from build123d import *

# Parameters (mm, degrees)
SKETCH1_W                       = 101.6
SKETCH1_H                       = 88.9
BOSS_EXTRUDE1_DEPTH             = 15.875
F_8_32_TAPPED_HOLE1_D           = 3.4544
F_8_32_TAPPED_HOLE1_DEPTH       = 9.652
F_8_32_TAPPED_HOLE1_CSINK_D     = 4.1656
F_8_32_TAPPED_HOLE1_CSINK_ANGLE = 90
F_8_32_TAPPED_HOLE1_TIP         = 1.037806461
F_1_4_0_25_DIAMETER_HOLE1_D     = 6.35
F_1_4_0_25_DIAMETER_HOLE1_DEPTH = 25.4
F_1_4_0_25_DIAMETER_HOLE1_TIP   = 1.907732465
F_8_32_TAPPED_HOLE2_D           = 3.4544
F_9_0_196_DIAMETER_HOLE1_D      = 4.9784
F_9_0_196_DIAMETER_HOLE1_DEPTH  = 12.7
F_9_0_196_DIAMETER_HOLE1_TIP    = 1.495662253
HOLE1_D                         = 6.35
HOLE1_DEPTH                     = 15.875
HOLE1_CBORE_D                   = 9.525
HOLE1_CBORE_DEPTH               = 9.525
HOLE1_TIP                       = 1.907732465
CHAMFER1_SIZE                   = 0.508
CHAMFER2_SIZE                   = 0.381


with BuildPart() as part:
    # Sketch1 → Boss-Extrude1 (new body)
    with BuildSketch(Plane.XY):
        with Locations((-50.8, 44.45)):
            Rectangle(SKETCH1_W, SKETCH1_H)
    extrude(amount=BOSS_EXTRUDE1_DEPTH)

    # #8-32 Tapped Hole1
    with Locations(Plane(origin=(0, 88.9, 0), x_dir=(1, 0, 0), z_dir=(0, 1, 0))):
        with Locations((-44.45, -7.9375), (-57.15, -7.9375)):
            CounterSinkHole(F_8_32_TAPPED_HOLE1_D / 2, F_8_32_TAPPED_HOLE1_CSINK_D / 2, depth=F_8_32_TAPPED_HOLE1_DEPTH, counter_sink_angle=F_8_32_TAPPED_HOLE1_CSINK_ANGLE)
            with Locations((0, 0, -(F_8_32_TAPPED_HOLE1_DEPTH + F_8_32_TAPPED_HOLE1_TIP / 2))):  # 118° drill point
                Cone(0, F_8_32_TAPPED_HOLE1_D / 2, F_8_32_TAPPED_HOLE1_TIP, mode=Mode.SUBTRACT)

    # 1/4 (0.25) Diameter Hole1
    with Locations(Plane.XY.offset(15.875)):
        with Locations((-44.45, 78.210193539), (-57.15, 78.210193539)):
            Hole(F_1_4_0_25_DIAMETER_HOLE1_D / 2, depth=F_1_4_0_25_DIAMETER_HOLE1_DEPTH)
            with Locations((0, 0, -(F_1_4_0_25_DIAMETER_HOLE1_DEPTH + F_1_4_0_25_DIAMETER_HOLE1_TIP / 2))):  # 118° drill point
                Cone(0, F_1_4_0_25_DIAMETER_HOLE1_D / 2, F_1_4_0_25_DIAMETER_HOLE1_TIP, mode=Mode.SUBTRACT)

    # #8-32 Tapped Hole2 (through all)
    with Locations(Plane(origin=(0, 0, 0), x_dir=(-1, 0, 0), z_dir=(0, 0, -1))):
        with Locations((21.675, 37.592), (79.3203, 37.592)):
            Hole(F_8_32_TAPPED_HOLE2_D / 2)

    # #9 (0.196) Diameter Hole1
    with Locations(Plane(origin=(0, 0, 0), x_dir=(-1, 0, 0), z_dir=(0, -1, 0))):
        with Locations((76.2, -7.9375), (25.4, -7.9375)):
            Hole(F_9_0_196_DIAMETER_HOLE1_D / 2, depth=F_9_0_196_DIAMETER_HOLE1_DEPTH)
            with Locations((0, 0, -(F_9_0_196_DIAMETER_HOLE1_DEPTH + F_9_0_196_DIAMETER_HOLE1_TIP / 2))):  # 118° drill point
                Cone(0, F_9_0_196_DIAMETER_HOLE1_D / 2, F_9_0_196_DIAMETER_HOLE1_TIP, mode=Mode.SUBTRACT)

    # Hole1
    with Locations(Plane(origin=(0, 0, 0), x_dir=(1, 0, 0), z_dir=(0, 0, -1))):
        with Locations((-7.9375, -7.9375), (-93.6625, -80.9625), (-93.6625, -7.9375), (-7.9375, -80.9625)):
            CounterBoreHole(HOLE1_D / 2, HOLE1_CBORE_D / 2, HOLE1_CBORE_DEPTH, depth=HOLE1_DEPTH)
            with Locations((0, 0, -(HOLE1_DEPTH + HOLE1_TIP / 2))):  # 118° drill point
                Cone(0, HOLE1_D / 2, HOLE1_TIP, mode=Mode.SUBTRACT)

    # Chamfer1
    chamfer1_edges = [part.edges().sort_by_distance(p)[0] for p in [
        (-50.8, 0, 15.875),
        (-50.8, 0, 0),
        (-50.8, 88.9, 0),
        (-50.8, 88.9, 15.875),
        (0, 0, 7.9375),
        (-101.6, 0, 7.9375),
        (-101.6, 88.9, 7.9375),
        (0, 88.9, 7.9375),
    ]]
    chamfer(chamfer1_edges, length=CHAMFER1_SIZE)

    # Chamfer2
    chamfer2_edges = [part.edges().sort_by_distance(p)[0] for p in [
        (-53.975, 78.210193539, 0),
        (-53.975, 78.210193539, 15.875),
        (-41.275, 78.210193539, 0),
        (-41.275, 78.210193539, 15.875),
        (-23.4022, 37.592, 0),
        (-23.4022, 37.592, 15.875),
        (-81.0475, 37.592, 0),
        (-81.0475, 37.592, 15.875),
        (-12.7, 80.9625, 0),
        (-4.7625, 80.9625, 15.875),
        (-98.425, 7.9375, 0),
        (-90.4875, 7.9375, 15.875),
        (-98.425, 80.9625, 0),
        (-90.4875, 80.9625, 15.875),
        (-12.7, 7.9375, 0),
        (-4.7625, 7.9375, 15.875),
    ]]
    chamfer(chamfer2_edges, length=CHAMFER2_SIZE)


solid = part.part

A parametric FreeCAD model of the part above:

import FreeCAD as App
import Part
import Sketcher
Q = App.Units.Quantity


def edges_at(feature, points):
    """Names of the edges that pass closest to the given points."""
    edges = feature.Shape.Edges
    near = lambda p: min(range(len(edges)), key=lambda i: edges[i].distToShape(Part.Vertex(*p))[0])
    return sorted({f"Edge{near(p) + 1}" for p in points})

doc = App.newDocument("Part")
body = doc.addObject("PartDesign::Body", "Body")

# Sketch on XY plane
sketch1 = body.newObject("Sketcher::SketchObject", "Sketch")
sketch1.AttachmentSupport = (doc.getObject("XY_Plane"), [""])
sketch1.MapMode = "FlatFace"
sketch1.addGeometry(Part.LineSegment(App.Vector(-101.6, 88.9, 0), App.Vector(-101.6, 0, 0)), False)
sketch1.addGeometry(Part.LineSegment(App.Vector(-101.6, 0, 0), App.Vector(0, 0, 0)), False)
sketch1.addGeometry(Part.LineSegment(App.Vector(0, 0, 0), App.Vector(0, 88.9, 0)), False)
sketch1.addGeometry(Part.LineSegment(App.Vector(0, 88.9, 0), App.Vector(-101.6, 88.9, 0)), False)
sketch1.addConstraint(Sketcher.Constraint("Coincident", 0, 2, 1, 1))
sketch1.addConstraint(Sketcher.Constraint("Coincident", 1, 2, 2, 1))
sketch1.addConstraint(Sketcher.Constraint("Coincident", 2, 2, 3, 1))
sketch1.addConstraint(Sketcher.Constraint("Coincident", 3, 2, 0, 1))
sketch1.addConstraint(Sketcher.Constraint("Vertical", 0))
sketch1.addConstraint(Sketcher.Constraint("Horizontal", 1))
sketch1.addConstraint(Sketcher.Constraint("Vertical", 2))
sketch1.addConstraint(Sketcher.Constraint("Horizontal", 3))
sketch1.addConstraint(Sketcher.Constraint("Coincident", 1, 2, -1, 1))
sketch1.addConstraint(Sketcher.Constraint("DistanceX", 1, 1, 1, 2, Q("4 in")))
sketch1.addConstraint(Sketcher.Constraint("DistanceY", 0, 2, 0, 1, Q("3.5 in")))
pad1 = body.newObject("PartDesign::Pad", "Pad")
pad1.Profile = sketch1
pad1.Length = Q("0.625 in")

# Sketch on XZ plane
sketch2 = body.newObject("Sketcher::SketchObject", "Sketch001")
sketch2.AttachmentSupport = (doc.getObject("XZ_Plane"), [""])
sketch2.MapMode = "FlatFace"
sketch2.AttachmentOffset = App.Placement(App.Vector(0, 0, -3.5 * 25.4), App.Rotation())
sketch2.addGeometry(Part.Circle(App.Vector(-44.45, 7.9375, 0), App.Vector(0, 0, 1), 1.7272), False)
sketch2.addGeometry(Part.Circle(App.Vector(-57.15, 7.9375, 0), App.Vector(0, 0, 1), 1.7272), False)
sketch2.addConstraint(Sketcher.Constraint("Equal", 0, 1))
sketch2.addConstraint(Sketcher.Constraint("Horizontal", 0, 3, 1, 3))
sketch2.addConstraint(Sketcher.Constraint("Diameter", 0, Q("0.136 in")))
sketch2.addConstraint(Sketcher.Constraint("DistanceX", 1, 3, 0, 3, Q("0.5 in")))
sketch2.addConstraint(Sketcher.Constraint("DistanceX", 0, 3, -1, 1, Q("1.75 in")))
sketch2.addConstraint(Sketcher.Constraint("DistanceY", -1, 1, 0, 3, Q("0.3125 in")))
doc.recompute()
hole = body.newObject("PartDesign::Hole", "Hole")
hole.Profile = sketch2
hole.ThreadType = "None"
hole.Diameter = Q("0.136 in")
hole.DepthType = "Dimension"
hole.Depth = Q("0.38 in")
hole.DrillPoint = "Angled"
hole.DrillPointAngle = 118
hole.HoleCutType = "Countersink"
hole.HoleCutDiameter = Q("0.164 in")
hole.HoleCutCountersinkAngle = 90
hole.Reversed = True

# Sketch on XY plane
sketch3 = body.newObject("Sketcher::SketchObject", "Sketch002")
sketch3.AttachmentSupport = (doc.getObject("XY_Plane"), [""])
sketch3.MapMode = "FlatFace"
sketch3.AttachmentOffset = App.Placement(App.Vector(0, 0, 0.625 * 25.4), App.Rotation())
sketch3.addGeometry(Part.Circle(App.Vector(-44.45, 78.210194, 0), App.Vector(0, 0, 1), 3.175), False)
sketch3.addGeometry(Part.Circle(App.Vector(-57.15, 78.210194, 0), App.Vector(0, 0, 1), 3.175), False)
sketch3.addConstraint(Sketcher.Constraint("Equal", 0, 1))
sketch3.addConstraint(Sketcher.Constraint("Horizontal", 0, 3, 1, 3))
sketch3.addConstraint(Sketcher.Constraint("Diameter", 0, Q("0.25 in")))
sketch3.addConstraint(Sketcher.Constraint("DistanceX", 1, 3, 0, 3, Q("0.5 in")))
sketch3.addConstraint(Sketcher.Constraint("DistanceX", 0, 3, -1, 1, Q("1.75 in")))
sketch3.addConstraint(Sketcher.Constraint("DistanceY", -1, 1, 0, 3, Q("78.210194 mm")))
doc.recompute()
hole2 = body.newObject("PartDesign::Hole", "Hole001")
hole2.Profile = sketch3
hole2.ThreadType = "None"
hole2.Diameter = Q("0.25 in")
hole2.DepthType = "Dimension"
hole2.Depth = Q("1 in")
hole2.DrillPoint = "Angled"
hole2.DrillPointAngle = 118

# Sketch on XY plane
sketch4 = body.newObject("Sketcher::SketchObject", "Sketch003")
sketch4.AttachmentSupport = (doc.getObject("XY_Plane"), [""])
sketch4.MapMode = "FlatFace"
sketch4.addGeometry(Part.Circle(App.Vector(-21.675, 37.592, 0), App.Vector(0, 0, 1), 1.7272), False)
sketch4.addGeometry(Part.Circle(App.Vector(-79.3203, 37.592, 0), App.Vector(0, 0, 1), 1.7272), False)
sketch4.addConstraint(Sketcher.Constraint("Equal", 0, 1))
sketch4.addConstraint(Sketcher.Constraint("Horizontal", 0, 3, 1, 3))
sketch4.addConstraint(Sketcher.Constraint("Diameter", 0, Q("0.136 in")))
sketch4.addConstraint(Sketcher.Constraint("DistanceY", -1, 1, 0, 3, Q("1.48 in")))
sketch4.addConstraint(Sketcher.Constraint("DistanceX", 1, 3, 0, 3, Q("2.2695 in")))
sketch4.addConstraint(Sketcher.Constraint("DistanceX", 0, 3, -1, 1, Q("21.675 mm")))
doc.recompute()
hole3 = body.newObject("PartDesign::Hole", "Hole002")
hole3.Profile = sketch4
hole3.ThreadType = "None"
hole3.Diameter = Q("0.136 in")
hole3.DepthType = "ThroughAll"
hole3.Reversed = True

# Sketch on XZ plane
sketch5 = body.newObject("Sketcher::SketchObject", "Sketch004")
sketch5.AttachmentSupport = (doc.getObject("XZ_Plane"), [""])
sketch5.MapMode = "FlatFace"
sketch5.addGeometry(Part.Circle(App.Vector(-76.2, 7.9375, 0), App.Vector(0, 0, 1), 2.4892), False)
sketch5.addGeometry(Part.Circle(App.Vector(-25.4, 7.9375, 0), App.Vector(0, 0, 1), 2.4892), False)
sketch5.addConstraint(Sketcher.Constraint("Equal", 0, 1))
sketch5.addConstraint(Sketcher.Constraint("Horizontal", 0, 3, 1, 3))
sketch5.addConstraint(Sketcher.Constraint("Diameter", 0, Q("0.196 in")))
sketch5.addConstraint(Sketcher.Constraint("DistanceX", 0, 3, -1, 1, Q("3 in")))
sketch5.addConstraint(Sketcher.Constraint("DistanceX", 1, 3, -1, 1, Q("1 in")))
sketch5.addConstraint(Sketcher.Constraint("DistanceY", -1, 1, 0, 3, Q("0.3125 in")))
doc.recompute()
hole4 = body.newObject("PartDesign::Hole", "Hole003")
hole4.Profile = sketch5
hole4.ThreadType = "None"
hole4.Diameter = Q("0.196 in")
hole4.DepthType = "Dimension"
hole4.Depth = Q("0.5 in")
hole4.DrillPoint = "Angled"
hole4.DrillPointAngle = 118

# Sketch on XY plane
sketch6 = body.newObject("Sketcher::SketchObject", "Sketch005")
sketch6.AttachmentSupport = (doc.getObject("XY_Plane"), [""])
sketch6.MapMode = "FlatFace"
sketch6.addGeometry(Part.Circle(App.Vector(-7.9375, 7.9375, 0), App.Vector(0, 0, 1), 3.175), False)
sketch6.addGeometry(Part.Circle(App.Vector(-93.6625, 80.9625, 0), App.Vector(0, 0, 1), 3.175), False)
sketch6.addGeometry(Part.Circle(App.Vector(-93.6625, 7.9375, 0), App.Vector(0, 0, 1), 3.175), False)
sketch6.addGeometry(Part.Circle(App.Vector(-7.9375, 80.9625, 0), App.Vector(0, 0, 1), 3.175), False)
sketch6.addConstraint(Sketcher.Constraint("Equal", 0, 1))
sketch6.addConstraint(Sketcher.Constraint("Equal", 1, 2))
sketch6.addConstraint(Sketcher.Constraint("Equal", 2, 3))
sketch6.addConstraint(Sketcher.Constraint("Horizontal", 0, 3, 2, 3))
sketch6.addConstraint(Sketcher.Constraint("Horizontal", 1, 3, 3, 3))
sketch6.addConstraint(Sketcher.Constraint("Vertical", 1, 3, 2, 3))
sketch6.addConstraint(Sketcher.Constraint("Vertical", 0, 3, 3, 3))
sketch6.addConstraint(Sketcher.Constraint("Diameter", 0, Q("0.25 in")))
sketch6.addConstraint(Sketcher.Constraint("DistanceX", 0, 3, -1, 1, Q("0.3125 in")))
sketch6.addConstraint(Sketcher.Constraint("DistanceY", -1, 1, 0, 3, Q("0.3125 in")))
sketch6.addConstraint(Sketcher.Constraint("DistanceX", 1, 3, -1, 1, Q("3.6875 in")))
sketch6.addConstraint(Sketcher.Constraint("DistanceY", -1, 1, 1, 3, Q("3.1875 in")))
doc.recompute()
hole5 = body.newObject("PartDesign::Hole", "Hole004")
hole5.Profile = sketch6
hole5.ThreadType = "None"
hole5.Diameter = Q("0.25 in")
hole5.DepthType = "Dimension"
hole5.Depth = Q("0.625 in")
hole5.DrillPoint = "Angled"
hole5.DrillPointAngle = 118
hole5.HoleCutType = "Counterbore"
hole5.HoleCutDiameter = Q("0.375 in")
hole5.HoleCutDepth = Q("0.375 in")
hole5.Reversed = True
doc.recompute()

chamfer = body.newObject("PartDesign::Chamfer", "Chamfer")
chamfer.Base = (hole5, edges_at(hole5, [
    (-50.8, 0, 15.875),
    (-50.8, 0, 0),
    (-50.8, 88.9, 0),
    (-50.8, 88.9, 15.875),
    (0, 0, 7.938),
    (-101.6, 0, 7.938),
    (-101.6, 88.9, 7.938),
    (0, 88.9, 7.938),
]))
chamfer.Size = Q("0.02 in")
doc.recompute()

chamfer2 = body.newObject("PartDesign::Chamfer", "Chamfer001")
chamfer2.Base = (chamfer, edges_at(chamfer, [
    (-53.975, 78.21, 0),
    (-53.975, 78.21, 15.875),
    (-41.275, 78.21, 0),
    (-41.275, 78.21, 15.875),
    (-23.402, 37.592, 0),
    (-23.402, 37.592, 15.875),
    (-81.047, 37.592, 0),
    (-81.047, 37.592, 15.875),
    (-12.7, 80.963, 0),
    (-4.763, 80.963, 15.875),
    (-98.425, 7.938, 0),
    (-90.487, 7.938, 15.875),
    (-98.425, 80.963, 0),
    (-90.487, 80.963, 15.875),
    (-12.7, 7.938, 0),
    (-4.763, 7.938, 15.875),
]))
chamfer2.Size = Q("0.015 in")

doc.recompute()
